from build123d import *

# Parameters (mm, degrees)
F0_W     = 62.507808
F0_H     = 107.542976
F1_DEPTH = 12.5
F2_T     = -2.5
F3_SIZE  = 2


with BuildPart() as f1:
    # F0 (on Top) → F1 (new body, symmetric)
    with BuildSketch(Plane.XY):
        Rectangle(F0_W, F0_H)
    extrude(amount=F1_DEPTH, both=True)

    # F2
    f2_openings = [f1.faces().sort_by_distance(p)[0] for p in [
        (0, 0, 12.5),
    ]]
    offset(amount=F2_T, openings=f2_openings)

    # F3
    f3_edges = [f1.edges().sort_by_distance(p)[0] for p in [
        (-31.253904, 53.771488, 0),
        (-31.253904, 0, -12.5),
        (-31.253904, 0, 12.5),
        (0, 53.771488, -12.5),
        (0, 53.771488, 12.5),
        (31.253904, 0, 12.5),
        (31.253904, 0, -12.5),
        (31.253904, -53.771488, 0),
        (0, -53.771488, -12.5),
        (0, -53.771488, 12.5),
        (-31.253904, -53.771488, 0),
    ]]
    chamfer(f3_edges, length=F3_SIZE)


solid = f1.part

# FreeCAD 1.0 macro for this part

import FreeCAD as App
import Part
import Sketcher
Q = App.Units.Quantity


def edges_at(feature, points):
    """Names of the edges that pass closest to the given points."""
    edges = feature.Shape.Edges
    near = lambda p: min(range(len(edges)), key=lambda i: edges[i].distToShape(Part.Vertex(*p))[0])
    return sorted({f"Edge{near(p) + 1}" for p in points})


def faces_at(feature, points):
    """Names of the faces that lie closest to the given points."""
    faces = feature.Shape.Faces
    near = lambda p: min(range(len(faces)), key=lambda i: faces[i].distToShape(Part.Vertex(*p))[0])
    return sorted({f"Face{near(p) + 1}" for p in points})


def add_polygon(sketch, points):
    """Adds a closed chain of lines whose ends are joined by coincident constraints."""
    first, n = sketch.GeometryCount, len(points)
    for a, b in zip(points, points[1:] + points[:1]):
        sketch.addGeometry(Part.LineSegment(App.Vector(*a, 0), App.Vector(*b, 0)), False)
    for i in range(n):
        sketch.addConstraint(Sketcher.Constraint("Coincident", first + i, 2, first + (i + 1) % n, 1))

doc = App.newDocument("Part")
body = doc.addObject("PartDesign::Body", "Body")

sketch1 = body.newObject("Sketcher::SketchObject", "Sketch")
sketch1.AttachmentSupport = (doc.getObject("XY_Plane"), [""])
sketch1.MapMode = "FlatFace"
add_polygon(sketch1, [(-31.253904, 53.771488), (-31.253904, -53.771488), (31.253904, -53.771488), (31.253904, 53.771488)])
sketch1.addConstraint([
    Sketcher.Constraint("Vertical", 0),
    Sketcher.Constraint("Horizontal", 1),
    Sketcher.Constraint("Vertical", 2),
    Sketcher.Constraint("Horizontal", 3),
    Sketcher.Constraint("Symmetric", 0, 2, 2, 2, -1, 1),
    Sketcher.Constraint("DistanceX", 1, 1, 1, 2, Q("62.507808 mm")),
    Sketcher.Constraint("DistanceY", 0, 2, 0, 1, Q("107.542976 mm")),
])
pad1 = body.newObject("PartDesign::Pad", "Pad")
pad1.Profile = sketch1
pad1.Length = 25
pad1.Midplane = True
doc.recompute()

thickness = body.newObject("PartDesign::Thickness", "Thickness")
thickness.Base = (pad1, faces_at(pad1, [(0, 0, 12.5)]))
thickness.Value = 2.5
thickness.Reversed = True
thickness.Join = "Arc"
doc.recompute()

chamfer = body.newObject("PartDesign::Chamfer", "Chamfer")
chamfer.Base = (thickness, edges_at(thickness, [
    (-31.254, 53.771, 0),
    (-31.254, 0, -12.5),
    (-31.254, 0, 12.5),
    (0, 53.771, -12.5),
    (0, 53.771, 12.5),
    (31.254, 0, 12.5),
    (31.254, 0, -12.5),
    (31.254, -53.771, 0),
    (0, -53.771, -12.5),
    (0, -53.771, 12.5),
    (-31.254, -53.771, 0),
]))
chamfer.Size = 2

doc.recompute()
